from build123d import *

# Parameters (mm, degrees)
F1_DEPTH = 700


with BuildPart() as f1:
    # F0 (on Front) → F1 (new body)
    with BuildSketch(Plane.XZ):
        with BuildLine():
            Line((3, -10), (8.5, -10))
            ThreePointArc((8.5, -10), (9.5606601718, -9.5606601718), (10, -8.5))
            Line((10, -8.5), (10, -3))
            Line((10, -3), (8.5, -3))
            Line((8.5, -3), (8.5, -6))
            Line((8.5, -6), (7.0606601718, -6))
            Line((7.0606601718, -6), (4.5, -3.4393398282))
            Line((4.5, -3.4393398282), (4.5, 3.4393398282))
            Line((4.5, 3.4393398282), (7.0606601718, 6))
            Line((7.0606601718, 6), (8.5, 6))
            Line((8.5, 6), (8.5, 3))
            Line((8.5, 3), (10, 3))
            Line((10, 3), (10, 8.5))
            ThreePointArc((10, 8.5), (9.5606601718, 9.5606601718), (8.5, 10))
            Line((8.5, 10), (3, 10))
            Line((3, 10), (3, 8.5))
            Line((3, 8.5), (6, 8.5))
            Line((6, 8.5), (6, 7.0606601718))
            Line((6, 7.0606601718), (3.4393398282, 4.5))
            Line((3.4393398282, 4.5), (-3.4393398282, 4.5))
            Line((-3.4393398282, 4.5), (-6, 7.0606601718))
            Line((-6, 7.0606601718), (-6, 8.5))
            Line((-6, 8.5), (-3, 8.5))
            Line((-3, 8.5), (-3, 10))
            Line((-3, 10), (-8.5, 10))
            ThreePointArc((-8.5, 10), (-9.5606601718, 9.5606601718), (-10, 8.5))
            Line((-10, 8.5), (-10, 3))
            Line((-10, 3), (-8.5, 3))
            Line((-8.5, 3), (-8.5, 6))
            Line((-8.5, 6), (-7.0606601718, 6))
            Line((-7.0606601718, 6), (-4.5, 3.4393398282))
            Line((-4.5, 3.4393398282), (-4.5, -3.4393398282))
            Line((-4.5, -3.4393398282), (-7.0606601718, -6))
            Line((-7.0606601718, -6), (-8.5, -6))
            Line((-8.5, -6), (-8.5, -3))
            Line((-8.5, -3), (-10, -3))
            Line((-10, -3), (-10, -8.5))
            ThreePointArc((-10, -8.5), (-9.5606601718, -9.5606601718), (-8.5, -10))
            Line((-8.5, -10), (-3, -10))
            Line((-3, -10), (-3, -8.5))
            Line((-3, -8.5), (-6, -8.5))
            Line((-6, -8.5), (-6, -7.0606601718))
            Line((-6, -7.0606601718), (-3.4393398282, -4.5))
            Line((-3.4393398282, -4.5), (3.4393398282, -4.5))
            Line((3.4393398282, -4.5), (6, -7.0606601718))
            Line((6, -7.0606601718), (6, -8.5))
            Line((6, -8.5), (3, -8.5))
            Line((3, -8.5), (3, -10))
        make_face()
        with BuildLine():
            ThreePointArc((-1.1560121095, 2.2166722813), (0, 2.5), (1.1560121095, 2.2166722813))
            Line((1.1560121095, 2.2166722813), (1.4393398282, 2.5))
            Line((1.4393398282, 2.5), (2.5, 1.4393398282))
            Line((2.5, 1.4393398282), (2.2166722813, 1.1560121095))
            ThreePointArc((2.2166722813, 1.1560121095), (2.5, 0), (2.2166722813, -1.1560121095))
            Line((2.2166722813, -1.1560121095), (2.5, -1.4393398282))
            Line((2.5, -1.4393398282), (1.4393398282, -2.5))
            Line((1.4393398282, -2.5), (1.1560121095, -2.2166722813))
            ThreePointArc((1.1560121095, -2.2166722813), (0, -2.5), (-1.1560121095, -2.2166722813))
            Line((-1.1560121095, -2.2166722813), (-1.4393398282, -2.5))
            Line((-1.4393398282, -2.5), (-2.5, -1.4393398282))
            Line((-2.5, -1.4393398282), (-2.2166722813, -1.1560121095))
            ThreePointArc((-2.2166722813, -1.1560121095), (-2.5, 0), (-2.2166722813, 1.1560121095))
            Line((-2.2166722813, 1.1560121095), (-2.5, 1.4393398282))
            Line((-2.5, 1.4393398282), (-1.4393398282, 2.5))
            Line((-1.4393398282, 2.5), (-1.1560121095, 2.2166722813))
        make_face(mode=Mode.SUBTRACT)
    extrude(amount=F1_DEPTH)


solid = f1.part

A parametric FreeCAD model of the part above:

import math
import FreeCAD as App
import Part
import Sketcher
from FreeCAD import Vector
Q = App.Units.Quantity

doc = App.newDocument("Part")
body = doc.addObject("PartDesign::Body", "Body")

# Sketch on XZ plane
sketch1 = body.newObject("Sketcher::SketchObject", "Sketch")
sketch1.AttachmentSupport = (doc.getObject("XZ_Plane"), [""])
sketch1.MapMode = "FlatFace"
sketch1.addGeometry([
    Part.LineSegment(Vector(3, -10, 0), Vector(8.5, -10, 0)),  # 0
    Part.ArcOfCircle(Part.Circle(Vector(8.5, -8.5, 0), Vector(0, 0, 1), 1.5), math.radians(-90), math.radians(0)),  # 1
    Part.LineSegment(Vector(10, -8.5, 0), Vector(10, -3, 0)),  # 2
    Part.LineSegment(Vector(10, -3, 0), Vector(8.5, -3, 0)),  # 3
    Part.LineSegment(Vector(8.5, -3, 0), Vector(8.5, -6, 0)),  # 4
    Part.LineSegment(Vector(8.5, -6, 0), Vector(7.06066, -6, 0)),  # 5
    Part.LineSegment(Vector(7.06066, -6, 0), Vector(4.5, -3.43934, 0)),  # 6
    Part.LineSegment(Vector(4.5, -3.43934, 0), Vector(4.5, 3.43934, 0)),  # 7
    Part.LineSegment(Vector(4.5, 3.43934, 0), Vector(7.06066, 6, 0)),  # 8
    Part.LineSegment(Vector(7.06066, 6, 0), Vector(8.5, 6, 0)),  # 9
    Part.LineSegment(Vector(8.5, 6, 0), Vector(8.5, 3, 0)),  # 10
    Part.LineSegment(Vector(8.5, 3, 0), Vector(10, 3, 0)),  # 11
    Part.LineSegment(Vector(10, 3, 0), Vector(10, 8.5, 0)),  # 12
    Part.ArcOfCircle(Part.Circle(Vector(8.5, 8.5, 0), Vector(0, 0, 1), 1.5), math.radians(0), math.radians(90)),  # 13
    Part.LineSegment(Vector(8.5, 10, 0), Vector(3, 10, 0)),  # 14
    Part.LineSegment(Vector(3, 10, 0), Vector(3, 8.5, 0)),  # 15
    Part.LineSegment(Vector(3, 8.5, 0), Vector(6, 8.5, 0)),  # 16
    Part.LineSegment(Vector(6, 8.5, 0), Vector(6, 7.06066, 0)),  # 17
    Part.LineSegment(Vector(6, 7.06066, 0), Vector(3.43934, 4.5, 0)),  # 18
    Part.LineSegment(Vector(3.43934, 4.5, 0), Vector(-3.43934, 4.5, 0)),  # 19
    Part.LineSegment(Vector(-3.43934, 4.5, 0), Vector(-6, 7.06066, 0)),  # 20
    Part.LineSegment(Vector(-6, 7.06066, 0), Vector(-6, 8.5, 0)),  # 21
    Part.LineSegment(Vector(-6, 8.5, 0), Vector(-3, 8.5, 0)),  # 22
    Part.LineSegment(Vector(-3, 8.5, 0), Vector(-3, 10, 0)),  # 23
    Part.LineSegment(Vector(-3, 10, 0), Vector(-8.5, 10, 0)),  # 24
    Part.ArcOfCircle(Part.Circle(Vector(-8.5, 8.5, 0), Vector(0, 0, 1), 1.5), math.radians(90), math.radians(180)),  # 25
    Part.LineSegment(Vector(-10, 8.5, 0), Vector(-10, 3, 0)),  # 26
    Part.LineSegment(Vector(-10, 3, 0), Vector(-8.5, 3, 0)),  # 27
    Part.LineSegment(Vector(-8.5, 3, 0), Vector(-8.5, 6, 0)),  # 28
    Part.LineSegment(Vector(-8.5, 6, 0), Vector(-7.06066, 6, 0)),  # 29
    Part.LineSegment(Vector(-7.06066, 6, 0), Vector(-4.5, 3.43934, 0)),  # 30
    Part.LineSegment(Vector(-4.5, 3.43934, 0), Vector(-4.5, -3.43934, 0)),  # 31
    Part.LineSegment(Vector(-4.5, -3.43934, 0), Vector(-7.06066, -6, 0)),  # 32
    Part.LineSegment(Vector(-7.06066, -6, 0), Vector(-8.5, -6, 0)),  # 33
    Part.LineSegment(Vector(-8.5, -6, 0), Vector(-8.5, -3, 0)),  # 34
    Part.LineSegment(Vector(-8.5, -3, 0), Vector(-10, -3, 0)),  # 35
    Part.LineSegment(Vector(-10, -3, 0), Vector(-10, -8.5, 0)),  # 36
    Part.ArcOfCircle(Part.Circle(Vector(-8.5, -8.5, 0), Vector(0, 0, 1), 1.5), math.radians(180), math.radians(270)),  # 37
    Part.LineSegment(Vector(-8.5, -10, 0), Vector(-3, -10, 0)),  # 38
    Part.LineSegment(Vector(-3, -10, 0), Vector(-3, -8.5, 0)),  # 39
    Part.LineSegment(Vector(-3, -8.5, 0), Vector(-6, -8.5, 0)),  # 40
    Part.LineSegment(Vector(-6, -8.5, 0), Vector(-6, -7.06066, 0)),  # 41
    Part.LineSegment(Vector(-6, -7.06066, 0), Vector(-3.43934, -4.5, 0)),  # 42
    Part.LineSegment(Vector(-3.43934, -4.5, 0), Vector(3.43934, -4.5, 0)),  # 43
    Part.LineSegment(Vector(3.43934, -4.5, 0), Vector(6, -7.06066, 0)),  # 44
    Part.LineSegment(Vector(6, -7.06066, 0), Vector(6, -8.5, 0)),  # 45
    Part.LineSegment(Vector(6, -8.5, 0), Vector(3, -8.5, 0)),  # 46
    Part.LineSegment(Vector(3, -8.5, 0), Vector(3, -10, 0)),  # 47
    Part.LineSegment(Vector(-1.43934, 2.5, 0), Vector(-1.156012, 2.216672, 0)),  # 48
    Part.ArcOfCircle(Part.Circle(Vector(0, 0, 0), Vector(0, 0, 1), 2.5), math.radians(62.457603), math.radians(117.542397)),  # 49
    Part.LineSegment(Vector(1.156012, 2.216672, 0), Vector(1.43934, 2.5, 0)),  # 50
    Part.LineSegment(Vector(1.43934, 2.5, 0), Vector(2.5, 1.43934, 0)),  # 51
    Part.LineSegment(Vector(2.5, 1.43934, 0), Vector(2.216672, 1.156012, 0)),  # 52
    Part.ArcOfCircle(Part.Circle(Vector(0, 0, 0), Vector(0, 0, 1), 2.5), math.radians(-27.542397), math.radians(27.542397)),  # 53
    Part.LineSegment(Vector(2.216672, -1.156012, 0), Vector(2.5, -1.43934, 0)),  # 54
    Part.LineSegment(Vector(2.5, -1.43934, 0), Vector(1.43934, -2.5, 0)),  # 55
    Part.LineSegment(Vector(1.43934, -2.5, 0), Vector(1.156012, -2.216672, 0)),  # 56
    Part.ArcOfCircle(Part.Circle(Vector(0, 0, 0), Vector(0, 0, 1), 2.5), math.radians(-117.542397), math.radians(-62.457603)),  # 57
    Part.LineSegment(Vector(-1.156012, -2.216672, 0), Vector(-1.43934, -2.5, 0)),  # 58
    Part.LineSegment(Vector(-1.43934, -2.5, 0), Vector(-2.5, -1.43934, 0)),  # 59
    Part.LineSegment(Vector(-2.5, -1.43934, 0), Vector(-2.216672, -1.156012, 0)),  # 60
    Part.ArcOfCircle(Part.Circle(Vector(0, 0, 0), Vector(0, 0, 1), 2.5), math.radians(152.457603), math.radians(207.542397)),  # 61
    Part.LineSegment(Vector(-2.216672, 1.156012, 0), Vector(-2.5, 1.43934, 0)),  # 62
    Part.LineSegment(Vector(-2.5, 1.43934, 0), Vector(-1.43934, 2.5, 0)),  # 63
], False)
sketch1.addConstraint([
    Sketcher.Constraint("Tangent", 0, 2, 1, 1),
    Sketcher.Constraint("Tangent", 1, 2, 2, 1),
    Sketcher.Constraint("Coincident", 2, 2, 3, 1),
    Sketcher.Constraint("Coincident", 3, 2, 4, 1),
    Sketcher.Constraint("Coincident", 4, 2, 5, 1),
    Sketcher.Constraint("Coincident", 5, 2, 6, 1),
    Sketcher.Constraint("Coincident", 6, 2, 7, 1),
    Sketcher.Constraint("Coincident", 7, 2, 8, 1),
    Sketcher.Constraint("Coincident", 8, 2, 9, 1),
    Sketcher.Constraint("Coincident", 9, 2, 10, 1),
    Sketcher.Constraint("Coincident", 10, 2, 11, 1),
    Sketcher.Constraint("Coincident", 11, 2, 12, 1),
    Sketcher.Constraint("Tangent", 12, 2, 13, 1),
    Sketcher.Constraint("Tangent", 13, 2, 14, 1),
    Sketcher.Constraint("Coincident", 14, 2, 15, 1),
    Sketcher.Constraint("Coincident", 15, 2, 16, 1),
    Sketcher.Constraint("Coincident", 16, 2, 17, 1),
    Sketcher.Constraint("Coincident", 17, 2, 18, 1),
    Sketcher.Constraint("Coincident", 18, 2, 19, 1),
    Sketcher.Constraint("Coincident", 19, 2, 20, 1),
    Sketcher.Constraint("Coincident", 20, 2, 21, 1),
    Sketcher.Constraint("Coincident", 21, 2, 22, 1),
    Sketcher.Constraint("Coincident", 22, 2, 23, 1),
    Sketcher.Constraint("Coincident", 23, 2, 24, 1),
    Sketcher.Constraint("Tangent", 24, 2, 25, 1),
    Sketcher.Constraint("Tangent", 25, 2, 26, 1),
    Sketcher.Constraint("Coincident", 26, 2, 27, 1),
    Sketcher.Constraint("Coincident", 27, 2, 28, 1),
    Sketcher.Constraint("Coincident", 28, 2, 29, 1),
    Sketcher.Constraint("Coincident", 29, 2, 30, 1),
    Sketcher.Constraint("Coincident", 30, 2, 31, 1),
    Sketcher.Constraint("Coincident", 31, 2, 32, 1),
    Sketcher.Constraint("Coincident", 32, 2, 33, 1),
    Sketcher.Constraint("Coincident", 33, 2, 34, 1),
    Sketcher.Constraint("Coincident", 34, 2, 35, 1),
    Sketcher.Constraint("Coincident", 35, 2, 36, 1),
    Sketcher.Constraint("Tangent", 36, 2, 37, 1),
    Sketcher.Constraint("Tangent", 37, 2, 38, 1),
    Sketcher.Constraint("Coincident", 38, 2, 39, 1),
    Sketcher.Constraint("Coincident", 39, 2, 40, 1),
    Sketcher.Constraint("Coincident", 40, 2, 41, 1),
    Sketcher.Constraint("Coincident", 41, 2, 42, 1),
    Sketcher.Constraint("Coincident", 42, 2, 43, 1),
    Sketcher.Constraint("Coincident", 43, 2, 44, 1),
    Sketcher.Constraint("Coincident", 44, 2, 45, 1),
    Sketcher.Constraint("Coincident", 45, 2, 46, 1),
    Sketcher.Constraint("Coincident", 46, 2, 47, 1),
    Sketcher.Constraint("Coincident", 47, 2, 0, 1),
    Sketcher.Constraint("Coincident", 48, 2, 49, 2),
    Sketcher.Constraint("Coincident", 49, 1, 50, 1),
    Sketcher.Constraint("Coincident", 50, 2, 51, 1),
    Sketcher.Constraint("Coincident", 51, 2, 52, 1),
    Sketcher.Constraint("Coincident", 52, 2, 53, 2),
    Sketcher.Constraint("Coincident", 53, 1, 54, 1),
    Sketcher.Constraint("Coincident", 54, 2, 55, 1),
    Sketcher.Constraint("Coincident", 55, 2, 56, 1),
    Sketcher.Constraint("Coincident", 56, 2, 57, 2),
    Sketcher.Constraint("Coincident", 57, 1, 58, 1),
    Sketcher.Constraint("Coincident", 58, 2, 59, 1),
    Sketcher.Constraint("Coincident", 59, 2, 60, 1),
    Sketcher.Constraint("Coincident", 60, 2, 61, 2),
    Sketcher.Constraint("Coincident", 61, 1, 62, 1),
    Sketcher.Constraint("Coincident", 62, 2, 63, 1),
    Sketcher.Constraint("Coincident", 63, 2, 48, 1),
    Sketcher.Constraint("Horizontal", 0),
    Sketcher.Constraint("Vertical", 2),
    Sketcher.Constraint("Horizontal", 3),
    Sketcher.Constraint("Vertical", 4),
    Sketcher.Constraint("Horizontal", 5),
    Sketcher.Constraint("Vertical", 7),
    Sketcher.Constraint("Horizontal", 9),
    Sketcher.Constraint("Vertical", 10),
    Sketcher.Constraint("Horizontal", 11),
    Sketcher.Constraint("Vertical", 12),
    Sketcher.Constraint("Horizontal", 14),
    Sketcher.Constraint("Vertical", 15),
    Sketcher.Constraint("Horizontal", 16),
    Sketcher.Constraint("Vertical", 17),
    Sketcher.Constraint("Horizontal", 19),
    Sketcher.Constraint("Vertical", 21),
    Sketcher.Constraint("Horizontal", 22),
    Sketcher.Constraint("Vertical", 23),
    Sketcher.Constraint("Horizontal", 24),
    Sketcher.Constraint("Vertical", 26),
    Sketcher.Constraint("Horizontal", 27),
    Sketcher.Constraint("Vertical", 28),
    Sketcher.Constraint("Horizontal", 29),
    Sketcher.Constraint("Vertical", 31),
    Sketcher.Constraint("Horizontal", 33),
    Sketcher.Constraint("Vertical", 34),
    Sketcher.Constraint("Horizontal", 35),
    Sketcher.Constraint("Vertical", 36),
    Sketcher.Constraint("Horizontal", 38),
    Sketcher.Constraint("Vertical", 39),
    Sketcher.Constraint("Horizontal", 40),
    Sketcher.Constraint("Vertical", 41),
    Sketcher.Constraint("Horizontal", 43),
    Sketcher.Constraint("Vertical", 45),
    Sketcher.Constraint("Horizontal", 46),
    Sketcher.Constraint("Vertical", 47),
    Sketcher.Constraint("Coincident", 49, 3, -1, 1),
    Sketcher.Constraint("Coincident", 53, 3, -1, 1),
    Sketcher.Constraint("Coincident", 57, 3, -1, 1),
    Sketcher.Constraint("Coincident", 61, 3, -1, 1),
    Sketcher.Constraint("Equal", 1, 13),
    Sketcher.Constraint("Equal", 13, 25),
    Sketcher.Constraint("Equal", 25, 37),
    Sketcher.Constraint("Equal", 49, 53),
    Sketcher.Constraint("Equal", 53, 57),
    Sketcher.Constraint("Equal", 57, 61),
    Sketcher.Constraint("Symmetric", 1, 3, 25, 3, -1, 1),
    Sketcher.Constraint("Symmetric", 13, 3, 37, 3, -1, 1),
    Sketcher.Constraint("Symmetric", 3, 2, 27, 2, -1, 1),
    Sketcher.Constraint("Symmetric", 5, 2, 29, 2, -1, 1),
    Sketcher.Constraint("Symmetric", 6, 2, 30, 2, -1, 1),
    Sketcher.Constraint("Symmetric", 8, 2, 32, 2, -1, 1),
    Sketcher.Constraint("Symmetric", 10, 2, 34, 2, -1, 1),
    Sketcher.Constraint("Symmetric", 15, 2, 39, 2, -1, 1),
    Sketcher.Constraint("Symmetric", 17, 2, 41, 2, -1, 1),
    Sketcher.Constraint("Symmetric", 18, 2, 42, 2, -1, 1),
    Sketcher.Constraint("Symmetric", 20, 2, 44, 2, -1, 1),
    Sketcher.Constraint("Symmetric", 22, 2, 46, 2, -1, 1),
    Sketcher.Constraint("Symmetric", 50, 2, 58, 2, -1, 1),
    Sketcher.Constraint("Symmetric", 51, 2, 59, 2, -1, 1),
    Sketcher.Constraint("Symmetric", 54, 2, 62, 2, -1, 1),
    Sketcher.Constraint("Symmetric", 55, 2, 63, 2, -1, 1),
    Sketcher.Constraint("Symmetric", 13, 3, 25, 3, -2),
    Sketcher.Constraint("Symmetric", 17, 2, 20, 2, -2),
    Sketcher.Constraint("Symmetric", 15, 2, 22, 2, -2),
    Sketcher.Constraint("Symmetric", 10, 2, 27, 2, -2),
    Sketcher.Constraint("Symmetric", 8, 2, 29, 2, -2),
    Sketcher.Constraint("Symmetric", 55, 2, 58, 2, -2),
    Sketcher.Constraint("Symmetric", 54, 2, 59, 2, -2),
    Sketcher.Constraint("Perpendicular", 6, 8),
    Sketcher.Constraint("Parallel", 8, 18),
    Sketcher.Constraint("Perpendicular", 18, 20),
    Sketcher.Constraint("Perpendicular", 30, 32),
    Sketcher.Constraint("Perpendicular", 42, 44),
    Sketcher.Constraint("Parallel", 44, 48),
    Sketcher.Constraint("Perpendicular", 48, 50),
    Sketcher.Constraint("Perpendicular", 50, 51),
    Sketcher.Constraint("Perpendicular", 51, 52),
    Sketcher.Constraint("Perpendicular", 52, 54),
    Sketcher.Constraint("Perpendicular", 54, 55),
    Sketcher.Constraint("Perpendicular", 55, 56),
    Sketcher.Constraint("Perpendicular", 56, 58),
    Sketcher.Constraint("Perpendicular", 59, 60),
    Sketcher.Constraint("Perpendicular", 60, 62),
    Sketcher.Constraint("Horizontal", 12, 2, 15, 2),
    Sketcher.Constraint("Vertical", 0, 2, 3, 2),
    Sketcher.Constraint("Equal", 38, 2),
    Sketcher.Constraint("Equal", 46, 4),
    Sketcher.Constraint("Equal", 43, 7),
    Sketcher.Constraint("Equal", 33, 17),
    Sketcher.Constraint("Equal", 8, 18),
    Sketcher.Constraint("Equal", 50, 52),
    Sketcher.Constraint("Radius", 1, Q("1.5 mm")),
    Sketcher.Constraint("Radius", 49, Q("2.5 mm")),
    Sketcher.Constraint("DistanceX", 16, 1, 16, 2, Q("3 mm")),
    Sketcher.Constraint("DistanceX", 0, 1, 0, 2, Q("5.5 mm")),
    Sketcher.Constraint("DistanceY", 0, 2, -1, 1, Q("10 mm")),
    Sketcher.Constraint("Distance", 51, Q("1.5 mm")),
    Sketcher.Constraint("DistanceX", -1, 1, 6, 2, Q("4.5 mm")),
    Sketcher.Constraint("DistanceY", -1, 1, 50, 2, Q("2.5 mm")),
    Sketcher.Constraint("DistanceX", 5, 2, 5, 1, Q("1.43934 mm")),
])
pad1 = body.newObject("PartDesign::Pad", "Pad")
pad1.Profile = sketch1
pad1.Length = 700

doc.recompute()
